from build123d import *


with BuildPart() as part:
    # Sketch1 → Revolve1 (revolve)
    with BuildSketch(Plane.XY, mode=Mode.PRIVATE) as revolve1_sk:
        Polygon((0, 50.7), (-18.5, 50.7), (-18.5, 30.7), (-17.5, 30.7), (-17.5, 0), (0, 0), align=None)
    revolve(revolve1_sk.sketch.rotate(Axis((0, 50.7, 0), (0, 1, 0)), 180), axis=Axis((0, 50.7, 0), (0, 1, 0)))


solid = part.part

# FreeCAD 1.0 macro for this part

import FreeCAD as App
import Part
import Sketcher

V = App.Vector
Q = App.Units.Quantity

doc = App.newDocument("Part")
body = doc.addObject("PartDesign::Body", "Body")

# Sketch on XY plane
sketch1 = body.newObject("Sketcher::SketchObject", "Sketch")
sketch1.AttachmentSupport = (doc.getObject("XY_Plane"), [""])
sketch1.MapMode = "FlatFace"
sketch1.addGeometry([
    Part.LineSegment(V(0, 50.7, 0), V(-18.5, 50.7, 0)),  # 0
    Part.LineSegment(V(-18.5, 50.7, 0), V(-18.5, 30.7, 0)),  # 1
    Part.LineSegment(V(-18.5, 30.7, 0), V(-17.5, 30.7, 0)),  # 2
    Part.LineSegment(V(-17.5, 30.7, 0), V(-17.5, 0, 0)),  # 3
    Part.LineSegment(V(-17.5, 0, 0), V(0, 0, 0)),  # 4
    Part.LineSegment(V(0, 0, 0), V(0, 50.7, 0)),  # 5
], False)
sketch1.addConstraint([
    Sketcher.Constraint("Coincident", 0, 2, 1, 1),
    Sketcher.Constraint("Coincident", 1, 2, 2, 1),
    Sketcher.Constraint("Coincident", 2, 2, 3, 1),
    Sketcher.Constraint("Coincident", 3, 2, 4, 1),
    Sketcher.Constraint("Coincident", 4, 2, 5, 1),
    Sketcher.Constraint("Coincident", 5, 2, 0, 1),
    Sketcher.Constraint("Horizontal", 0),
    Sketcher.Constraint("Vertical", 1),
    Sketcher.Constraint("Horizontal", 2),
    Sketcher.Constraint("Vertical", 3),
    Sketcher.Constraint("Horizontal", 4),
    Sketcher.Constraint("Vertical", 5),
    Sketcher.Constraint("Coincident", 4, 2, -1, 1),
    Sketcher.Constraint("DistanceX", 2, 1, 2, 2, Q("1 mm")),
    Sketcher.Constraint("DistanceY", 1, 2, 1, 1, Q("20 mm")),
    Sketcher.Constraint("DistanceX", 0, 2, 0, 1, Q("18.5 mm")),
    Sketcher.Constraint("DistanceY", 3, 2, 3, 1, Q("30.7 mm")),
])
revolution = body.newObject("PartDesign::Revolution", "Revolution")
revolution.Profile = sketch1
revolution.ReferenceAxis = (sketch1, ["V_Axis"])
revolution.Angle = 360

doc.recompute()
